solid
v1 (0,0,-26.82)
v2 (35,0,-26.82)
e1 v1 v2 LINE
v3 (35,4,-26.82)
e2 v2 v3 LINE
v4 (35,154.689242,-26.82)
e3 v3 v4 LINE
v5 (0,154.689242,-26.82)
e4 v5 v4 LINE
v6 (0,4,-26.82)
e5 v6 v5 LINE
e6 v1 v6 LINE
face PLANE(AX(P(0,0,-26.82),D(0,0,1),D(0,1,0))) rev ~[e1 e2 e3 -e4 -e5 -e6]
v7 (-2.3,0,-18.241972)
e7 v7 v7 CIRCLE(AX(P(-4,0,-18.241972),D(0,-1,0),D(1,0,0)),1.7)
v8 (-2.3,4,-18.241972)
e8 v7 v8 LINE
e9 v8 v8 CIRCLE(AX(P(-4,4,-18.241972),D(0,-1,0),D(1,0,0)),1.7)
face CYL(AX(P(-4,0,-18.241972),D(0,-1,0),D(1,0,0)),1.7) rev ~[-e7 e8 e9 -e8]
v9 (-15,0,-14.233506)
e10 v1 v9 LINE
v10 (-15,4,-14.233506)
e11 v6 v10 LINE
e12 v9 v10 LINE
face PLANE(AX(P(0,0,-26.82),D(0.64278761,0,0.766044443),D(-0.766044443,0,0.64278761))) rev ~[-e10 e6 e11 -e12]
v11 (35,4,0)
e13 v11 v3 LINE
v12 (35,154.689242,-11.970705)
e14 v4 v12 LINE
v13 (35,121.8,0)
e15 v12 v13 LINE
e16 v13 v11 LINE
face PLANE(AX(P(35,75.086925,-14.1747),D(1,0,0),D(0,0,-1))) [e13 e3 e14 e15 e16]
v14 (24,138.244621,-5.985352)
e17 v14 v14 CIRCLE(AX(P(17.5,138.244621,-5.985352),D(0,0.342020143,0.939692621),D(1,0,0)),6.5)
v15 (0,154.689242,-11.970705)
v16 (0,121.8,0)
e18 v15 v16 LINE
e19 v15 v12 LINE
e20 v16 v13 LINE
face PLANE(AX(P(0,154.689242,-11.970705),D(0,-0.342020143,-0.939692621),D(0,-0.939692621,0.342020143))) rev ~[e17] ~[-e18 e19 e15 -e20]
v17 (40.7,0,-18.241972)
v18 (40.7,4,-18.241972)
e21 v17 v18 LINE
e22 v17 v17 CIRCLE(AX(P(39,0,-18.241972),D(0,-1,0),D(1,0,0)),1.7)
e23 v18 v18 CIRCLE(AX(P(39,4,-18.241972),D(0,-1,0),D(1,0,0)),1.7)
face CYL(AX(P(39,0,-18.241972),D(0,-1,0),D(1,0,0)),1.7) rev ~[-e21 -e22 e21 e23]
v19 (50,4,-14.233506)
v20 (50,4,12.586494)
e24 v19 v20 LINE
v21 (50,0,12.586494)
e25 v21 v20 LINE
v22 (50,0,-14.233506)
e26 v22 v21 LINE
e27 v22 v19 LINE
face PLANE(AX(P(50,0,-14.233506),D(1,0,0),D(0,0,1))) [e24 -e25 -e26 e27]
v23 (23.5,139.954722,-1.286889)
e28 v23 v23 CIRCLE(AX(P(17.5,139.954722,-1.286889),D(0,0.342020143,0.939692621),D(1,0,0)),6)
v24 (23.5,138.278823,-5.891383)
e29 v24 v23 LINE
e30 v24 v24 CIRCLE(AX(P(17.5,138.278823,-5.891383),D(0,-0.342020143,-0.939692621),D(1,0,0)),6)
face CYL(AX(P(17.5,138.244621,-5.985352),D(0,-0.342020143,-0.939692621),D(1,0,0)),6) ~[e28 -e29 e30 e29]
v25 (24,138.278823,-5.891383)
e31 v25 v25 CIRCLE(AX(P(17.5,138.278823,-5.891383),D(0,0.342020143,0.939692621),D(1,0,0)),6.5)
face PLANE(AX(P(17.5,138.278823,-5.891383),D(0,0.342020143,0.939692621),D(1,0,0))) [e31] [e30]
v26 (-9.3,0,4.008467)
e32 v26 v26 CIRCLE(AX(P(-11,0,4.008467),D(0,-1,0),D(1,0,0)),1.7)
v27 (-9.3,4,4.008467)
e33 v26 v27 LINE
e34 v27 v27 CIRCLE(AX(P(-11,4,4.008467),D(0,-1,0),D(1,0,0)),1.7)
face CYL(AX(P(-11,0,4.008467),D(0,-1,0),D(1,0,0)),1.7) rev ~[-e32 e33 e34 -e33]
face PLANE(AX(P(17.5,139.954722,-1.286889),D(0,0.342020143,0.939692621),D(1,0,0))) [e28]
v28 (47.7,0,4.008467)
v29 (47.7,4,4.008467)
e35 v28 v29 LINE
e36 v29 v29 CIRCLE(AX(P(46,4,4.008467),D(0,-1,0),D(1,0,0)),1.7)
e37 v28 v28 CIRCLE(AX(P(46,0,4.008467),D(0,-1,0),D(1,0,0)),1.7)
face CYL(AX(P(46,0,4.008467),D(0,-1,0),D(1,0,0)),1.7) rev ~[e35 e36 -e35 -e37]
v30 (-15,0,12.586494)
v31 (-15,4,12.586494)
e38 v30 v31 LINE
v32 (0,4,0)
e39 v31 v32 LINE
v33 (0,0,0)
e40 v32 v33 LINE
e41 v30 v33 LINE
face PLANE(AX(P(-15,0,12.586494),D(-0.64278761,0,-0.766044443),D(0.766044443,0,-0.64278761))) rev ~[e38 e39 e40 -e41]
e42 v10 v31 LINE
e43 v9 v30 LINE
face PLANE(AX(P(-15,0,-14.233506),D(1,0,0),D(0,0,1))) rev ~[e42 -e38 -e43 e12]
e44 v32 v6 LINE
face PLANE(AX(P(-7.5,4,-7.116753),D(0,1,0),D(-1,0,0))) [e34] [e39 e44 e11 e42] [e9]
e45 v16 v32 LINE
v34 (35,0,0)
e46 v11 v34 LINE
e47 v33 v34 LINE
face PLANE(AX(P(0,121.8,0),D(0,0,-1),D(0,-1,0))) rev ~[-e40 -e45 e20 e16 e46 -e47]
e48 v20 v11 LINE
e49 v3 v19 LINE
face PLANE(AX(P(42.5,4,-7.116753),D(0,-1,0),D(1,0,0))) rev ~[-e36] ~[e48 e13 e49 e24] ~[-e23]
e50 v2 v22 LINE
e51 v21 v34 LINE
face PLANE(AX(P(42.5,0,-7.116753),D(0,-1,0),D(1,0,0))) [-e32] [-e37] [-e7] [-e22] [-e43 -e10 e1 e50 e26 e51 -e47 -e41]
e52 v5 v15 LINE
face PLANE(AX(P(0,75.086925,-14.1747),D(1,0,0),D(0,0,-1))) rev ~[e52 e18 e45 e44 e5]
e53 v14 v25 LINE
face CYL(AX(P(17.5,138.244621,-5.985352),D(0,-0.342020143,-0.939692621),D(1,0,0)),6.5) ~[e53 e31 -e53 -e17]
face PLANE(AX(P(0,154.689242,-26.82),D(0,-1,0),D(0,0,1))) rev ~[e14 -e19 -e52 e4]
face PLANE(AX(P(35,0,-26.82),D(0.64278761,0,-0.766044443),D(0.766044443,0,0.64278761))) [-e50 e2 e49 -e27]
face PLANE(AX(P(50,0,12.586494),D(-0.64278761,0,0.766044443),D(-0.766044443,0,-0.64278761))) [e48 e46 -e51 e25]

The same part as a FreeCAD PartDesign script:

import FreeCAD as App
import Part
import Sketcher
Q = App.Units.Quantity

doc = App.newDocument("Part")
body = doc.addObject("PartDesign::Body", "Body")

sketch1 = doc.addObject("Sketcher::SketchObject", "Sketch")
body.addObject(sketch1)
sketch1.AttachmentSupport = (doc.YZ_Plane, [""])
sketch1.MapMode = "FlatFace"
sketch1.addGeometry([
    Part.LineSegment(App.Vector(0, 0, 0), App.Vector(0, -27, 0)),
    Part.LineSegment(App.Vector(0, -27, 0), App.Vector(155, -27, 0)),
    Part.LineSegment(App.Vector(155, -27, 0), App.Vector(155, -12, 0)),
    Part.LineSegment(App.Vector(155, -12, 0), App.Vector(122, 0, 0)),
    Part.LineSegment(App.Vector(122, 0, 0), App.Vector(0, 0, 0)),
], False)
sketch1.addConstraint([
    Sketcher.Constraint("Coincident", 0, 2, 1, 1),
    Sketcher.Constraint("Coincident", 1, 2, 2, 1),
    Sketcher.Constraint("Coincident", 2, 2, 3, 1),
    Sketcher.Constraint("Coincident", 3, 2, 4, 1),
    Sketcher.Constraint("Coincident", 4, 2, 0, 1),
    Sketcher.Constraint("Vertical", 0),
    Sketcher.Constraint("Horizontal", 1),
    Sketcher.Constraint("Vertical", 2),
    Sketcher.Constraint("Horizontal", 4),
    Sketcher.Constraint("Coincident", 4, 2, -1, 1),
    Sketcher.Constraint("Angle", 3, Q("160 deg")),
    Sketcher.Constraint("Distance", 3, 35.0),
    Sketcher.Constraint("DistanceX", 4, 2, 4, 1, 121.8),
    Sketcher.Constraint("DistanceY", 0, 2, 0, 1, 26.82),
])
pad1 = doc.addObject("PartDesign::Pad", "Pad")
body.addObject(pad1)
pad1.Profile = sketch1
pad1.Length = 35

sketch2 = doc.addObject("Sketcher::SketchObject", "Sketch001")
body.addObject(sketch2)
sketch2.Placement = App.Placement(App.Vector(0, 14.247893, 39.145765), App.Rotation(App.Vector(1, 0, 0), App.Vector(0, 0.939692621, -0.342020143), App.Vector(0, 0.342020143, 0.939692621), "ZXY"))
sketch2.addGeometry(Part.Circle(App.Vector(18, 132, 0), App.Vector(0, 0, 1), 6), False)
sketch2.addConstraint([
    Sketcher.Constraint("Diameter", 0, 12.0),
    Sketcher.Constraint("DistanceX", -1, 1, 0, 3, 17.5),
    Sketcher.Constraint("DistanceY", -1, 1, 0, 3, 131.954561),
])
pad2 = doc.addObject("PartDesign::Pad", "Pad001")
body.addObject(pad2)
pad2.Profile = sketch2
pad2.Length = 5

sketch3 = doc.addObject("Sketcher::SketchObject", "Sketch002")
body.addObject(sketch3)
sketch3.Placement = App.Placement(App.Vector(0, 14.247893, 39.145765), App.Rotation(App.Vector(1, 0, 0), App.Vector(0, 0.939692621, -0.342020143), App.Vector(0, 0.342020143, 0.939692621), "ZXY"))
sketch3.addGeometry(Part.Circle(App.Vector(18, 132, 0), App.Vector(0, 0, 1), 6), False)
sketch3.addConstraint([
    Sketcher.Constraint("Diameter", 0, 13.0),
    Sketcher.Constraint("DistanceX", -1, 1, 0, 3, 17.5),
    Sketcher.Constraint("DistanceY", -1, 1, 0, 3, 131.954561),
])
pad3 = doc.addObject("PartDesign::Pad", "Pad002")
body.addObject(pad3)
pad3.Profile = sketch3
pad3.Length = 0.1

sketch4 = doc.addObject("Sketcher::SketchObject", "Sketch003")
body.addObject(sketch4)
sketch4.AttachmentSupport = (doc.XZ_Plane, [""])
sketch4.MapMode = "FlatFace"
sketch4.addGeometry([
    Part.LineSegment(App.Vector(35, -26.8, 0), App.Vector(50, -14.2, 0)),
    Part.LineSegment(App.Vector(50, -14.2, 0), App.Vector(50, 12.6, 0)),
    Part.LineSegment(App.Vector(50, 12.6, 0), App.Vector(35, 0, 0)),
    Part.LineSegment(App.Vector(35, 0, 0), App.Vector(35, -26.8, 0)),
    Part.Circle(App.Vector(39, -18.2, 0), App.Vector(0, 0, 1), 1.7),
    Part.Circle(App.Vector(46, 4, 0), App.Vector(0, 0, 1), 1.7),
    Part.LineSegment(App.Vector(0, -26.8, 0), App.Vector(0, 0, 0)),
    Part.LineSegment(App.Vector(0, 0, 0), App.Vector(-15, 12.6, 0)),
    Part.LineSegment(App.Vector(-15, 12.6, 0), App.Vector(-15, -14.2, 0)),
    Part.LineSegment(App.Vector(-15, -14.2, 0), App.Vector(0, -26.8, 0)),
    Part.Circle(App.Vector(-4, -18.2, 0), App.Vector(0, 0, 1), 1.7),
    Part.Circle(App.Vector(-11, 4, 0), App.Vector(0, 0, 1), 1.7),
], False)
sketch4.addConstraint([
    Sketcher.Constraint("Coincident", 0, 2, 1, 1),
    Sketcher.Constraint("Coincident", 1, 2, 2, 1),
    Sketcher.Constraint("Coincident", 2, 2, 3, 1),
    Sketcher.Constraint("Coincident", 3, 2, 0, 1),
    Sketcher.Constraint("Coincident", 6, 2, 7, 1),
    Sketcher.Constraint("Coincident", 7, 2, 8, 1),
    Sketcher.Constraint("Coincident", 8, 2, 9, 1),
    Sketcher.Constraint("Coincident", 9, 2, 6, 1),
    Sketcher.Constraint("Vertical", 1),
    Sketcher.Constraint("Vertical", 3),
    Sketcher.Constraint("Vertical", 6),
    Sketcher.Constraint("Vertical", 8),
    Sketcher.Constraint("Coincident", 6, 2, -1, 1),
    Sketcher.Constraint("Equal", 4, 5),
    Sketcher.Constraint("Equal", 5, 10),
    Sketcher.Constraint("Equal", 10, 11),
    Sketcher.Constraint("PointOnObject", 2, 2, -1),
    Sketcher.Constraint("Parallel", 0, 2),
    Sketcher.Constraint("Parallel", 7, 9),
    Sketcher.Constraint("Horizontal", 4, 3, 10, 3),
    Sketcher.Constraint("Horizontal", 5, 3, 11, 3),
    Sketcher.Constraint("Horizontal", 1, 2, 7, 2),
    Sketcher.Constraint("Horizontal", 0, 2, 8, 2),
    Sketcher.Constraint("Equal", 2, 7),
    Sketcher.Constraint("Diameter", 4, 3.4),
    Sketcher.Constraint("Angle", 0, Q("40 deg")),
    Sketcher.Constraint("DistanceX", -1, 1, 4, 3, 39.0),
    Sketcher.Constraint("DistanceX", -1, 1, 5, 3, 46.0),
    Sketcher.Constraint("DistanceX", 10, 3, -1, 1, 4.0),
    Sketcher.Constraint("DistanceX", 11, 3, -1, 1, 11.0),
    Sketcher.Constraint("DistanceX", -1, 1, 0, 2, 50.0),
    Sketcher.Constraint("DistanceX", -1, 1, 2, 2, 35.0),
    Sketcher.Constraint("DistanceY", 1, 1, 1, 2, 26.82),
    Sketcher.Constraint("DistanceY", 4, 3, 5, 3, 22.250439),
    Sketcher.Constraint("DistanceY", 4, 3, -1, 1, 18.241972),
])
pad4 = doc.addObject("PartDesign::Pad", "Pad003")
body.addObject(pad4)
pad4.Profile = sketch4
pad4.Length = 4
pad4.Reversed = True

doc.recompute()
